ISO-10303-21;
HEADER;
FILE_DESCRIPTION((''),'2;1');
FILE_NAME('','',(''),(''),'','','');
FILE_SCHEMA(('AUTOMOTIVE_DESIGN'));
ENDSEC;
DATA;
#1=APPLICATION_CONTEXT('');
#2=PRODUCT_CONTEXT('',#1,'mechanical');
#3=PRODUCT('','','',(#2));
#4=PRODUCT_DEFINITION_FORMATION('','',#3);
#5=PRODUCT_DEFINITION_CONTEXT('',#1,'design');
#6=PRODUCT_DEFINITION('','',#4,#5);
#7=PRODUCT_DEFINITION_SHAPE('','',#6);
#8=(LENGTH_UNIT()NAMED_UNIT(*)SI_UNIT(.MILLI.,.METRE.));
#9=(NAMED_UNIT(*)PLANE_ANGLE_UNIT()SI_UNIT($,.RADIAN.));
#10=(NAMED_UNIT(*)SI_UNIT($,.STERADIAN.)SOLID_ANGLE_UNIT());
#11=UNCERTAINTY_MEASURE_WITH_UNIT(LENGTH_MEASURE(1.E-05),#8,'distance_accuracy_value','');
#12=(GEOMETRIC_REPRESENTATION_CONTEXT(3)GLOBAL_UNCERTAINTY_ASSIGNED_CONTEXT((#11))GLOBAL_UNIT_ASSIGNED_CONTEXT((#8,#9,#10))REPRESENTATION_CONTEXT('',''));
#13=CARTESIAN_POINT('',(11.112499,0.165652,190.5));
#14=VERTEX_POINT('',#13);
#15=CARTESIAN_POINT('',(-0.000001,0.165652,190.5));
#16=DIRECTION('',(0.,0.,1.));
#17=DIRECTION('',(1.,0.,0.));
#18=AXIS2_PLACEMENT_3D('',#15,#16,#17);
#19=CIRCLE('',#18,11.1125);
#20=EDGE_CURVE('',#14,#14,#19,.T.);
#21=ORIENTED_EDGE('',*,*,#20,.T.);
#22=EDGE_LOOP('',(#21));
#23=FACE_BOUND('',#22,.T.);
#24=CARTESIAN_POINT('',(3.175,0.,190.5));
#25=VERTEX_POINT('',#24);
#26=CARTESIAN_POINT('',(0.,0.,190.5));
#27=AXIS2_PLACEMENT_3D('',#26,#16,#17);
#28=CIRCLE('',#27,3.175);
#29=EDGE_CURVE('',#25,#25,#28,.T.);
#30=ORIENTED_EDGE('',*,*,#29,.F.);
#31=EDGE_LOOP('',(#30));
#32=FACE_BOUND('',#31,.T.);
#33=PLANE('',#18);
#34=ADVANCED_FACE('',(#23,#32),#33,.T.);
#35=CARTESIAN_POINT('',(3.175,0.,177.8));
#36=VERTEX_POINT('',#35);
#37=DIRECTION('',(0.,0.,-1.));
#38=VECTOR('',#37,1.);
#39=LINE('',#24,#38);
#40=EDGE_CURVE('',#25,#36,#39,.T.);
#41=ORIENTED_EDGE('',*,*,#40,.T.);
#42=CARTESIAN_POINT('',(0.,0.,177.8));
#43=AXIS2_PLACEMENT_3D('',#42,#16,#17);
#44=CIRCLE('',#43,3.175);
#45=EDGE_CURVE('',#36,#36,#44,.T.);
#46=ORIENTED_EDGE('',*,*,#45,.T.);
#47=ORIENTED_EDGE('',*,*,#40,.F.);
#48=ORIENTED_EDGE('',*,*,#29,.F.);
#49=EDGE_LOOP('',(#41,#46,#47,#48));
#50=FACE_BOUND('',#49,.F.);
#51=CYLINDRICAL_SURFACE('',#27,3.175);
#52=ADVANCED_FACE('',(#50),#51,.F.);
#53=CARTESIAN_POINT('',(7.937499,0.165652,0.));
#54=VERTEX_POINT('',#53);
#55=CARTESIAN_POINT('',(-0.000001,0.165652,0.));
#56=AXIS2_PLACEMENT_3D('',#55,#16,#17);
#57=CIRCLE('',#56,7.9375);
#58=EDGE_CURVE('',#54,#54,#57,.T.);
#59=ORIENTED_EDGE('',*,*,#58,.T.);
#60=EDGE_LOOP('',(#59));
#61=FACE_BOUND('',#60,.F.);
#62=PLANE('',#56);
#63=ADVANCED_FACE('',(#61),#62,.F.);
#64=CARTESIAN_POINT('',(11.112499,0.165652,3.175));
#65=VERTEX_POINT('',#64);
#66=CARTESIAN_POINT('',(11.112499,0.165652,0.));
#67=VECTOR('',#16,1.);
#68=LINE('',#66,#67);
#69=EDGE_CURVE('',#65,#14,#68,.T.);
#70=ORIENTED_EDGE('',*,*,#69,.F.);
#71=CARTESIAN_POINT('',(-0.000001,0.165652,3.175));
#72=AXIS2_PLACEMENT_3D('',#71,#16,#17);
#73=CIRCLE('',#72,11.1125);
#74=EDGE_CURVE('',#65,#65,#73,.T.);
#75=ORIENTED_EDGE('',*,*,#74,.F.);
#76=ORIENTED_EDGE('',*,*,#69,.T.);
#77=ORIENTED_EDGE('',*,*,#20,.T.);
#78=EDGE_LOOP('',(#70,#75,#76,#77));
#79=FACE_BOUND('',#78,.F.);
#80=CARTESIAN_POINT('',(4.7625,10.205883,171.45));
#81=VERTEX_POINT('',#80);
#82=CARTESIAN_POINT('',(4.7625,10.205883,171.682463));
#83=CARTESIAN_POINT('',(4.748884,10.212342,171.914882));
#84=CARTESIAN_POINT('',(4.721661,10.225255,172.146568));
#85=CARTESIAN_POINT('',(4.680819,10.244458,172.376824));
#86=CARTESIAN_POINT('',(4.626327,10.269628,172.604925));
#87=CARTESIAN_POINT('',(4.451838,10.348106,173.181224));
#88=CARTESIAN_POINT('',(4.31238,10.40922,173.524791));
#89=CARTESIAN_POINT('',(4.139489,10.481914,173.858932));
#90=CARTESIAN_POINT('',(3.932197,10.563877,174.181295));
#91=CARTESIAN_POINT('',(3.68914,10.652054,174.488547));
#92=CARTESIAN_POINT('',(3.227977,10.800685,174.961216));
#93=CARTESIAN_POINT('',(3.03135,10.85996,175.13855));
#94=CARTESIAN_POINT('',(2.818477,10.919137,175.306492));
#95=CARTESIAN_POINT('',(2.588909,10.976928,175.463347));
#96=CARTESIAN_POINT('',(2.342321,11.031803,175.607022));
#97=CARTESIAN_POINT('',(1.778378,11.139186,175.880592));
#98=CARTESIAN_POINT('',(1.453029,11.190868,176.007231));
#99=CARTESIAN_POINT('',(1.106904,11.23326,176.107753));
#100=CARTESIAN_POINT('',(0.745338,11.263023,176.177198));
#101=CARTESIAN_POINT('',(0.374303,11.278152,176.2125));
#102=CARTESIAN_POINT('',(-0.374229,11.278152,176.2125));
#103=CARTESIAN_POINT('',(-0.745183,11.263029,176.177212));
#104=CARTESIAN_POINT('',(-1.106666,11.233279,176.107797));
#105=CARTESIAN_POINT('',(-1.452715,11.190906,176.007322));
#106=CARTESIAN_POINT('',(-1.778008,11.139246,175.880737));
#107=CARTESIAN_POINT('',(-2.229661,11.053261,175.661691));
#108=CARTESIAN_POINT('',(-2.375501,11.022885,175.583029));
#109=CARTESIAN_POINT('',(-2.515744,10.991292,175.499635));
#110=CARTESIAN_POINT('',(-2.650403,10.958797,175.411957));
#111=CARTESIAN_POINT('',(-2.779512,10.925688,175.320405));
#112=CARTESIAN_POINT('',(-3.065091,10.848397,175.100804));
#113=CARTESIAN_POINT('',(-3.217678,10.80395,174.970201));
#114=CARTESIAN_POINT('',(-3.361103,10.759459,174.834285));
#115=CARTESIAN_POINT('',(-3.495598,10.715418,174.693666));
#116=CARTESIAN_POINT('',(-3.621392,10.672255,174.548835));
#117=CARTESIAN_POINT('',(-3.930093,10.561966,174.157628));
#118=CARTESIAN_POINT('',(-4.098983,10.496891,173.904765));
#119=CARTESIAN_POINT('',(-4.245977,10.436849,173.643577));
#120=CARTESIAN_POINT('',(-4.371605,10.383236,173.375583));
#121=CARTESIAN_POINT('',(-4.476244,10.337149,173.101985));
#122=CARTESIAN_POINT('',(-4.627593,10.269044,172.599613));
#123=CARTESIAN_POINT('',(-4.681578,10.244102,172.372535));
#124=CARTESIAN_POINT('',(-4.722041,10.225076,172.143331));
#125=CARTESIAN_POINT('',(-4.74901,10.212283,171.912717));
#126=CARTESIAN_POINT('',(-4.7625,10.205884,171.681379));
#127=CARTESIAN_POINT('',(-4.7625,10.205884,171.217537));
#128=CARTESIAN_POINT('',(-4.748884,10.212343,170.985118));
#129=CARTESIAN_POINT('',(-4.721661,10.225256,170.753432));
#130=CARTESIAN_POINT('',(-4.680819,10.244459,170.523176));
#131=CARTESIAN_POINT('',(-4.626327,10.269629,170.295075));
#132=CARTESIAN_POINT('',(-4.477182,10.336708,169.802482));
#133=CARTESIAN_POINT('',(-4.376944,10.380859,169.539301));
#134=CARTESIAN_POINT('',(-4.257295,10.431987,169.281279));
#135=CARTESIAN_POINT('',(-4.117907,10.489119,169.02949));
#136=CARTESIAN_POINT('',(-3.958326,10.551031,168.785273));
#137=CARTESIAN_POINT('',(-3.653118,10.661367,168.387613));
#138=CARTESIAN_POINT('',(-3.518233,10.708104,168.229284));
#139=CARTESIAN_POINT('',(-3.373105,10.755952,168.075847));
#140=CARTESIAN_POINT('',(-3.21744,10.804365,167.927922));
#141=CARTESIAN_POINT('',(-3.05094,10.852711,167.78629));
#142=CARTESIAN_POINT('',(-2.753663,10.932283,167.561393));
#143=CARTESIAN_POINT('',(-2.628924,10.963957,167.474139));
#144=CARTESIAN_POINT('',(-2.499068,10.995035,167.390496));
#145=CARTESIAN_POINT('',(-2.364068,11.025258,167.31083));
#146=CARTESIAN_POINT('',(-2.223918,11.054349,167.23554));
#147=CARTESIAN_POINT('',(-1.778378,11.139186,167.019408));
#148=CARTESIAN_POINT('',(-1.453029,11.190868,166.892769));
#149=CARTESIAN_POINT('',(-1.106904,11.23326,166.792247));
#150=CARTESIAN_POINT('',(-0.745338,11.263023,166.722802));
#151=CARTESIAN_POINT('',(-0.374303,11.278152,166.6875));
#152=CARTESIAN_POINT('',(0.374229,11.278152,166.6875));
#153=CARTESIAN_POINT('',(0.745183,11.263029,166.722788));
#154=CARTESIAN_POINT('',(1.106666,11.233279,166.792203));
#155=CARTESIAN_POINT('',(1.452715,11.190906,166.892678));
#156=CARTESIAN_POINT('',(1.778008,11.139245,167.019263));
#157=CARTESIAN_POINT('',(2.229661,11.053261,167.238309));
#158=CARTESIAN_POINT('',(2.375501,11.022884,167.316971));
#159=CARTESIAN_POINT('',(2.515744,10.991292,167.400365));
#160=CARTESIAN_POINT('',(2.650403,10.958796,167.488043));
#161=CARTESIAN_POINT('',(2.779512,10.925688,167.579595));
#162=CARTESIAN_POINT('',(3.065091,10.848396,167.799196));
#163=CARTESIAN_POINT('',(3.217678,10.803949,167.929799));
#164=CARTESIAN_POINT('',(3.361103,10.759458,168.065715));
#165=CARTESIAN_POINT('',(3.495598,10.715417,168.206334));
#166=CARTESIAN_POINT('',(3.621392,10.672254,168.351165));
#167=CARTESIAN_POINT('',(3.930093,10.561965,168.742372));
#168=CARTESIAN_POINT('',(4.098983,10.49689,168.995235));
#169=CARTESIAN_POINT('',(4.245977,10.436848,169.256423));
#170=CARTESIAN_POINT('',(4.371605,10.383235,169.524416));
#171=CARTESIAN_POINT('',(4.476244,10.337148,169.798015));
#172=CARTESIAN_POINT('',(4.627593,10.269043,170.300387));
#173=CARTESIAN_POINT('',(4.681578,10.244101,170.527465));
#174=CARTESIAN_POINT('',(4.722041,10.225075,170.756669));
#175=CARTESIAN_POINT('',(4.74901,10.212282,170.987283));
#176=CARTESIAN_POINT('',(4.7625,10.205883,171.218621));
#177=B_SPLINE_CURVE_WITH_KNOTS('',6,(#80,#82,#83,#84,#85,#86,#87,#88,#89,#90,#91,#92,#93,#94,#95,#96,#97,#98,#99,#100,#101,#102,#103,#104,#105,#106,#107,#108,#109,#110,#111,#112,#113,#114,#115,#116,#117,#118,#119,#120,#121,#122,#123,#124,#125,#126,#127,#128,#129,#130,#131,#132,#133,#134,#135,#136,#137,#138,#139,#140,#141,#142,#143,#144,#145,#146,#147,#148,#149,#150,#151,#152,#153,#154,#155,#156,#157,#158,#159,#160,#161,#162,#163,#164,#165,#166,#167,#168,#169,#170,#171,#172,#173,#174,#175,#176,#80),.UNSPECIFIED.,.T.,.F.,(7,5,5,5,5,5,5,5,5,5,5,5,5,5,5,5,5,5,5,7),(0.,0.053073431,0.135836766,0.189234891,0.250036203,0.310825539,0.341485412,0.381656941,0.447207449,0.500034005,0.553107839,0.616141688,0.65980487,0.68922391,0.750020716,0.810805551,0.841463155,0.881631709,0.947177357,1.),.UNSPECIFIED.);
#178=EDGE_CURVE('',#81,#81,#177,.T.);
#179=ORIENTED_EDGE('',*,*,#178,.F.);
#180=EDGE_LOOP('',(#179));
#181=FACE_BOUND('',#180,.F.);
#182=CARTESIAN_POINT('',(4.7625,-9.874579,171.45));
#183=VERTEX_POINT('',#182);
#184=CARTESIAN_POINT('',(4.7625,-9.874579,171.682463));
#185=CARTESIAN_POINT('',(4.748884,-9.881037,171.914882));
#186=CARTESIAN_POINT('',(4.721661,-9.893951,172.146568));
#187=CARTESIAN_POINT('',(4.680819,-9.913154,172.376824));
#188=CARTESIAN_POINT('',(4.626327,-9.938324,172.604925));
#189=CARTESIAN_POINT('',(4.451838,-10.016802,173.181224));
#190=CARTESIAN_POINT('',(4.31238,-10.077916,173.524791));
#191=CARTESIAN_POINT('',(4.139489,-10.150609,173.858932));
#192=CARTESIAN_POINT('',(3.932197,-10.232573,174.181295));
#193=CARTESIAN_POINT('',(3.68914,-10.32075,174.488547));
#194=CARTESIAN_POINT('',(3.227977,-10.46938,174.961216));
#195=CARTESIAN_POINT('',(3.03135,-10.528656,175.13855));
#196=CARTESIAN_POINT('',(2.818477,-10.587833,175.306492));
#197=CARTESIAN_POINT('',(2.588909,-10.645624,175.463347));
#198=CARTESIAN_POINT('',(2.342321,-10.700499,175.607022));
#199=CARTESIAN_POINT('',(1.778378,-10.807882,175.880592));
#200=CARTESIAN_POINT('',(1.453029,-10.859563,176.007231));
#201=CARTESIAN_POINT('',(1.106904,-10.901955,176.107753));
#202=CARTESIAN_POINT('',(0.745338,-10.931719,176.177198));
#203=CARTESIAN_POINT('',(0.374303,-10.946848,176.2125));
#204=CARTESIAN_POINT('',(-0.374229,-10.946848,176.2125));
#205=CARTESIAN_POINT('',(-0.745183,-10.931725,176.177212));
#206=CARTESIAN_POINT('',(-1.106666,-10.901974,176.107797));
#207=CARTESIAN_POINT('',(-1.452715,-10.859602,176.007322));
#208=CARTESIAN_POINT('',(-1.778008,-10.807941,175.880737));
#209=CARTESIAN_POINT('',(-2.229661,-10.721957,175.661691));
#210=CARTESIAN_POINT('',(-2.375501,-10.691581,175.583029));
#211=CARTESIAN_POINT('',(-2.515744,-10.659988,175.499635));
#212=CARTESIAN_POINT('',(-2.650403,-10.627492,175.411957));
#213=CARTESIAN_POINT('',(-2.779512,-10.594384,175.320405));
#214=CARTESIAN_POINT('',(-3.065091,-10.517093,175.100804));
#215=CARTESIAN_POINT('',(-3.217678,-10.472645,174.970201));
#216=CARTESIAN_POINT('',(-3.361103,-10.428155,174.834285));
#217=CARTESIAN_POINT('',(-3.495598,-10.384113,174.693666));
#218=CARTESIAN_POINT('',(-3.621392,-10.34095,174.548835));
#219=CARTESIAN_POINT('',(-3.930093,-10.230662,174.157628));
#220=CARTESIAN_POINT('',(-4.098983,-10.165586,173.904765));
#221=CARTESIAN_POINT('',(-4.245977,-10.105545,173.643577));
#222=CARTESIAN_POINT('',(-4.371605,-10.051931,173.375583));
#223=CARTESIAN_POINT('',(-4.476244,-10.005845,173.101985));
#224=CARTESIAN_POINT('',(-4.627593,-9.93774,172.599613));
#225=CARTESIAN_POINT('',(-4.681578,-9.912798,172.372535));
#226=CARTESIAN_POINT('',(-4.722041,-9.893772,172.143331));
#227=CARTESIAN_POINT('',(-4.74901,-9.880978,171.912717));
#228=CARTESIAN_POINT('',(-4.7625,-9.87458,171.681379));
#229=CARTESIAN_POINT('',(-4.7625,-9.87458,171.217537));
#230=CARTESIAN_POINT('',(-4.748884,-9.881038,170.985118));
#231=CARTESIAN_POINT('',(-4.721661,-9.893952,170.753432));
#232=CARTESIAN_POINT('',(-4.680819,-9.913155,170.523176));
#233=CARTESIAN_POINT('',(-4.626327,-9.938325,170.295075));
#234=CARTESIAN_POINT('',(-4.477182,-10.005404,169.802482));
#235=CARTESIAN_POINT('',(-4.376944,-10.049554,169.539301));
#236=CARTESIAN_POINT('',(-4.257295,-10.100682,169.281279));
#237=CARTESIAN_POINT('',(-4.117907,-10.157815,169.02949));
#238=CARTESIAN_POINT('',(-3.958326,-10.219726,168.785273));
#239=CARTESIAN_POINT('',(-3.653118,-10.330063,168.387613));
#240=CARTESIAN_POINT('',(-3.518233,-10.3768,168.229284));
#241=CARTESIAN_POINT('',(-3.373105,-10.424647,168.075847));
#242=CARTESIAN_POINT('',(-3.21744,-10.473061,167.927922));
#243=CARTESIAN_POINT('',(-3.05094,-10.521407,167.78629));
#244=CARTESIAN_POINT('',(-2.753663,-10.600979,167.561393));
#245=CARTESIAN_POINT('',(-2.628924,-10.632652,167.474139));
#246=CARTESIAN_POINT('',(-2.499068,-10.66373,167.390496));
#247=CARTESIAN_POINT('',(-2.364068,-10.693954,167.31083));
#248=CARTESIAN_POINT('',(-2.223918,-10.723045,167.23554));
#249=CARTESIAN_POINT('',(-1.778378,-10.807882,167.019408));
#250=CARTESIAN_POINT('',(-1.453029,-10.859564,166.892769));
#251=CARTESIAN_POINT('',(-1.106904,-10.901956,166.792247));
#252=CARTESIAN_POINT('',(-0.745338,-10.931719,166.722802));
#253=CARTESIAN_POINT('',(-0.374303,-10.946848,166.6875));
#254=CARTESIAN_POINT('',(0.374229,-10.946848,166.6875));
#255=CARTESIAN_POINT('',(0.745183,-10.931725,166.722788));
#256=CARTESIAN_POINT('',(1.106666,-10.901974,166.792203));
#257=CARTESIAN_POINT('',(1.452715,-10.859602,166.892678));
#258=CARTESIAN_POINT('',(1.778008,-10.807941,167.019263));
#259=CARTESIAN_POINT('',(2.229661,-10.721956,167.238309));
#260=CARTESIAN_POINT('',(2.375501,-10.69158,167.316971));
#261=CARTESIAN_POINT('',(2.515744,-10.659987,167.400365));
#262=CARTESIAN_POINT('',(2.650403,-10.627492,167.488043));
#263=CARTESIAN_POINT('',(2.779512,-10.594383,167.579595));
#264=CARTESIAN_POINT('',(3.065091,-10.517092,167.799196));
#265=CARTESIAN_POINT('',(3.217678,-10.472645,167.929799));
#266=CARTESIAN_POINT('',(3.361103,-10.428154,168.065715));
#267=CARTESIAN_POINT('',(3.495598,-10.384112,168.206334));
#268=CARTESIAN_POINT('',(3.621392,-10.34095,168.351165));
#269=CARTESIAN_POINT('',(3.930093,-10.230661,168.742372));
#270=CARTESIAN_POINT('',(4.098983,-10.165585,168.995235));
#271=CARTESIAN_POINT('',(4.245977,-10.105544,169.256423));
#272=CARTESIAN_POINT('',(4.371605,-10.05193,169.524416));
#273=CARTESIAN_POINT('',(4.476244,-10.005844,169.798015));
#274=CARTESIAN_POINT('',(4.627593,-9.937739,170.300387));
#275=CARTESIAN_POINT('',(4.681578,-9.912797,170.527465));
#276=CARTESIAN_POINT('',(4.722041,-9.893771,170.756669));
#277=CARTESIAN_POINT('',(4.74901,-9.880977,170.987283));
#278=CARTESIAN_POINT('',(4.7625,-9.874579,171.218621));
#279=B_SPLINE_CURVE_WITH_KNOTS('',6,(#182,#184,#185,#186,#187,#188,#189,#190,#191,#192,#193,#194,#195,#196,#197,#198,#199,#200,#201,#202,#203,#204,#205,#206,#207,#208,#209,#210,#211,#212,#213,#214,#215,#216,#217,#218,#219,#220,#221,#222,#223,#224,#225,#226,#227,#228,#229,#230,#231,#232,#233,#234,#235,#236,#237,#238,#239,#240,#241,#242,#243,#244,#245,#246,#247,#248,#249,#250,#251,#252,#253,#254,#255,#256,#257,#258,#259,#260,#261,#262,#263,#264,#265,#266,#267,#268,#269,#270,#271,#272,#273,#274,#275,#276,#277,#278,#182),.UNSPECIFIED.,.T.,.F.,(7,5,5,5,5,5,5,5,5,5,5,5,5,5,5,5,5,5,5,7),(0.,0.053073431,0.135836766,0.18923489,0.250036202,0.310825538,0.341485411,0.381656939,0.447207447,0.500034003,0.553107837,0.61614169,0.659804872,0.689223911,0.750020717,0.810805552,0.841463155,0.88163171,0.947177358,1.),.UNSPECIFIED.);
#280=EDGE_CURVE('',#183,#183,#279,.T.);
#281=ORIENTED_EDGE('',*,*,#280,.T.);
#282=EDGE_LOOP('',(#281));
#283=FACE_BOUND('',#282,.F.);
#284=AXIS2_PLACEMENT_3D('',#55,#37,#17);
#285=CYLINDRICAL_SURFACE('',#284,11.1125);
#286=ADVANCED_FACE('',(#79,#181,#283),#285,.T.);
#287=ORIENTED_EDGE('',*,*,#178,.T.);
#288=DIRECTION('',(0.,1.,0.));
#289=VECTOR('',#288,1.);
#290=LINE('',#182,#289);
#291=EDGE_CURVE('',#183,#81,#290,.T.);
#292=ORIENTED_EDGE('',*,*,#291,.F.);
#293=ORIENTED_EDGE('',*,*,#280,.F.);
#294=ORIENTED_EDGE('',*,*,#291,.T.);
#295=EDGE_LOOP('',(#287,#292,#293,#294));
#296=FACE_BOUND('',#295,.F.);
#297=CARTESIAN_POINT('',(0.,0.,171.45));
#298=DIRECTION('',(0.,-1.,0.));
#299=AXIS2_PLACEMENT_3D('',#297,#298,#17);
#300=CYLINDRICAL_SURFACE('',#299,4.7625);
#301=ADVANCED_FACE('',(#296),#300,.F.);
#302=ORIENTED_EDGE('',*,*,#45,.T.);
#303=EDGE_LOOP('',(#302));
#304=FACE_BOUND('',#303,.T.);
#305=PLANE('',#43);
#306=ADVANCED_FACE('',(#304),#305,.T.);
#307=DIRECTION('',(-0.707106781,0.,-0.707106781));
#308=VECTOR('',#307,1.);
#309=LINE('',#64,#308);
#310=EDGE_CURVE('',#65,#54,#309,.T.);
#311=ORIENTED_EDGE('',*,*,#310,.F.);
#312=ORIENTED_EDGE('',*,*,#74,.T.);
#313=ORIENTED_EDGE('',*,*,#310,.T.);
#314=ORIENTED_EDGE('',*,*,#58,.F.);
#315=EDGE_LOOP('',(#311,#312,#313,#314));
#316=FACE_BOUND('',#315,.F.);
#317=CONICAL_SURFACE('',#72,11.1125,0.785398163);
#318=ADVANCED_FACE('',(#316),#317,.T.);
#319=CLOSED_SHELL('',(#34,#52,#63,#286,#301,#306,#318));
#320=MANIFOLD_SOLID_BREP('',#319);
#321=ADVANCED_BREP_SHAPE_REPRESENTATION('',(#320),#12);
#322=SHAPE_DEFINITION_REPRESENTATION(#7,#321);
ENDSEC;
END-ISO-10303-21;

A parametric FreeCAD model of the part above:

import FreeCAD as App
import Part
import Sketcher
Q = App.Units.Quantity


def edges_at(feature, points):
    """Names of the edges that pass closest to the given points."""
    edges = feature.Shape.Edges
    near = lambda p: min(range(len(edges)), key=lambda i: edges[i].distToShape(Part.Vertex(*p))[0])
    return sorted({f"Edge{near(p) + 1}" for p in points})

doc = App.newDocument("Part")
body = doc.addObject("PartDesign::Body", "Body")

# Sketch on XY plane
sketch1 = body.newObject("Sketcher::SketchObject", "Sketch")
sketch1.AttachmentSupport = (doc.getObject("XY_Plane"), [""])
sketch1.MapMode = "FlatFace"
sketch1.addGeometry(Part.Circle(App.Vector(0, 0, 0), App.Vector(0, 0, 1), 11), False)
sketch1.addConstraint(Sketcher.Constraint("PointOnObject", 0, 3, -2))
sketch1.addConstraint(Sketcher.Constraint("Diameter", 0, Q("0.875 in")))
sketch1.addConstraint(Sketcher.Constraint("DistanceY", -1, 1, 0, 3, Q("0.165652 mm")))
pad1 = body.newObject("PartDesign::Pad", "Pad")
pad1.Profile = sketch1
pad1.Length = Q("7.5 in")
doc.recompute()

chamfer = body.newObject("PartDesign::Chamfer", "Chamfer")
chamfer.Base = (pad1, edges_at(pad1, [(-11.113, 0.166, 0)]))
chamfer.Size = Q("0.125 in")

# Sketch on XZ plane
sketch2 = body.newObject("Sketcher::SketchObject", "Sketch001")
sketch2.AttachmentSupport = (doc.getObject("XZ_Plane"), [""])
sketch2.MapMode = "FlatFace"
sketch2.addGeometry(Part.Circle(App.Vector(0, 171.4, 0), App.Vector(0, 0, 1), 4.8), False)
sketch2.addConstraint(Sketcher.Constraint("PointOnObject", 0, 3, -2))
sketch2.addConstraint(Sketcher.Constraint("Diameter", 0, Q("0.375 in")))
sketch2.addConstraint(Sketcher.Constraint("DistanceY", -1, 1, 0, 3, Q("6.75 in")))
pocket1 = body.newObject("PartDesign::Pocket", "Pocket")
pocket1.Profile = sketch2
pocket1.Type = "ThroughAll"
pocket1.Midplane = True

# Sketch on XY plane
sketch3 = body.newObject("Sketcher::SketchObject", "Sketch002")
sketch3.AttachmentSupport = (doc.getObject("XY_Plane"), [""])
sketch3.MapMode = "FlatFace"
sketch3.AttachmentOffset = App.Placement(App.Vector(0, 0, 7.5 * 25.4), App.Rotation())
sketch3.addGeometry(Part.Circle(App.Vector(0, 0, 0), App.Vector(0, 0, 1), 3.2), False)
sketch3.addConstraint(Sketcher.Constraint("Coincident", 0, 3, -1, 1))
sketch3.addConstraint(Sketcher.Constraint("Diameter", 0, Q("0.25 in")))
pocket2 = body.newObject("PartDesign::Pocket", "Pocket001")
pocket2.Profile = sketch3
pocket2.Length = Q("0.5 in")

doc.recompute()
